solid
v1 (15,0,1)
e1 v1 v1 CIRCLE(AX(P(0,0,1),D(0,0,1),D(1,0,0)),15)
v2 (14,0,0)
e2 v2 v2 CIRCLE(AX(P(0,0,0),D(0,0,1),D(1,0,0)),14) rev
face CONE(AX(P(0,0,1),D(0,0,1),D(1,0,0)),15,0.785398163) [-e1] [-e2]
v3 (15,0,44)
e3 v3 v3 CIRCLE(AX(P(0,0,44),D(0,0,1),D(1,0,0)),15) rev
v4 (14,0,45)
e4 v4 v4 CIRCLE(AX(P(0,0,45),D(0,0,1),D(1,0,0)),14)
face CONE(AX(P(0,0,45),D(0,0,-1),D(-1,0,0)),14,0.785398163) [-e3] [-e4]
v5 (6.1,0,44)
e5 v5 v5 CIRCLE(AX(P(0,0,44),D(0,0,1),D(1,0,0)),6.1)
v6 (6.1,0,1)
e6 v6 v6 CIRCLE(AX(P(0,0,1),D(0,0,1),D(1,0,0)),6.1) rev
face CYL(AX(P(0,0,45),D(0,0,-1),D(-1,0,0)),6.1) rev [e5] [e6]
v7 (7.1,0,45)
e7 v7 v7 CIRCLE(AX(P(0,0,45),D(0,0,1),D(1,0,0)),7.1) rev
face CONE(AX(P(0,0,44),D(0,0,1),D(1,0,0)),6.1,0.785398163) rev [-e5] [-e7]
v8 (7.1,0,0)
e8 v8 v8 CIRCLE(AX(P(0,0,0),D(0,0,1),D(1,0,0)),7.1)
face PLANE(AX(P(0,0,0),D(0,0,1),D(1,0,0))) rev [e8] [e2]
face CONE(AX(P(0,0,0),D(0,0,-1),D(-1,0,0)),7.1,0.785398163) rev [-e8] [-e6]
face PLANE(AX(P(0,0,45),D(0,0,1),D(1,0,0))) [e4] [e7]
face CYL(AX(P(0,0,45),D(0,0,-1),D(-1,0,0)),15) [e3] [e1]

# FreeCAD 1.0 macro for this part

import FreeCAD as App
import Part
import Sketcher
Q = App.Units.Quantity


def edges_at(feature, points):
    """Names of the edges that pass closest to the given points."""
    edges = feature.Shape.Edges
    near = lambda p: min(range(len(edges)), key=lambda i: edges[i].distToShape(Part.Vertex(*p))[0])
    return sorted({f"Edge{near(p) + 1}" for p in points})

doc = App.newDocument("Part")
body = doc.addObject("PartDesign::Body", "Body")

sketch1 = body.newObject("Sketcher::SketchObject", "Sketch")
sketch1.AttachmentSupport = (doc.getObject("XY_Plane"), [""])
sketch1.MapMode = "FlatFace"
sketch1.addGeometry(Part.Circle(App.Vector(0, 0, 0), App.Vector(0, 0, 1), 15), False)
sketch1.addGeometry(Part.Circle(App.Vector(0, 0, 0), App.Vector(0, 0, 1), 6.1), False)
sketch1.addConstraint(Sketcher.Constraint("Coincident", 0, 3, -1, 1))
sketch1.addConstraint(Sketcher.Constraint("Coincident", 1, 3, -1, 1))
sketch1.addConstraint(Sketcher.Constraint("Diameter", 0, Q("30 mm")))
sketch1.addConstraint(Sketcher.Constraint("Diameter", 1, Q("12.2 mm")))
pad1 = body.newObject("PartDesign::Pad", "Pad")
pad1.Profile = sketch1
pad1.Length = 45
doc.recompute()

chamfer = body.newObject("PartDesign::Chamfer", "Chamfer")
chamfer.Base = (pad1, edges_at(pad1, [
    (-15, 0, 0),
    (-15, 0, 45),
    (-6.1, 0, 0),
    (-6.1, 0, 45),
]))
chamfer.Size = 1

doc.recompute()
